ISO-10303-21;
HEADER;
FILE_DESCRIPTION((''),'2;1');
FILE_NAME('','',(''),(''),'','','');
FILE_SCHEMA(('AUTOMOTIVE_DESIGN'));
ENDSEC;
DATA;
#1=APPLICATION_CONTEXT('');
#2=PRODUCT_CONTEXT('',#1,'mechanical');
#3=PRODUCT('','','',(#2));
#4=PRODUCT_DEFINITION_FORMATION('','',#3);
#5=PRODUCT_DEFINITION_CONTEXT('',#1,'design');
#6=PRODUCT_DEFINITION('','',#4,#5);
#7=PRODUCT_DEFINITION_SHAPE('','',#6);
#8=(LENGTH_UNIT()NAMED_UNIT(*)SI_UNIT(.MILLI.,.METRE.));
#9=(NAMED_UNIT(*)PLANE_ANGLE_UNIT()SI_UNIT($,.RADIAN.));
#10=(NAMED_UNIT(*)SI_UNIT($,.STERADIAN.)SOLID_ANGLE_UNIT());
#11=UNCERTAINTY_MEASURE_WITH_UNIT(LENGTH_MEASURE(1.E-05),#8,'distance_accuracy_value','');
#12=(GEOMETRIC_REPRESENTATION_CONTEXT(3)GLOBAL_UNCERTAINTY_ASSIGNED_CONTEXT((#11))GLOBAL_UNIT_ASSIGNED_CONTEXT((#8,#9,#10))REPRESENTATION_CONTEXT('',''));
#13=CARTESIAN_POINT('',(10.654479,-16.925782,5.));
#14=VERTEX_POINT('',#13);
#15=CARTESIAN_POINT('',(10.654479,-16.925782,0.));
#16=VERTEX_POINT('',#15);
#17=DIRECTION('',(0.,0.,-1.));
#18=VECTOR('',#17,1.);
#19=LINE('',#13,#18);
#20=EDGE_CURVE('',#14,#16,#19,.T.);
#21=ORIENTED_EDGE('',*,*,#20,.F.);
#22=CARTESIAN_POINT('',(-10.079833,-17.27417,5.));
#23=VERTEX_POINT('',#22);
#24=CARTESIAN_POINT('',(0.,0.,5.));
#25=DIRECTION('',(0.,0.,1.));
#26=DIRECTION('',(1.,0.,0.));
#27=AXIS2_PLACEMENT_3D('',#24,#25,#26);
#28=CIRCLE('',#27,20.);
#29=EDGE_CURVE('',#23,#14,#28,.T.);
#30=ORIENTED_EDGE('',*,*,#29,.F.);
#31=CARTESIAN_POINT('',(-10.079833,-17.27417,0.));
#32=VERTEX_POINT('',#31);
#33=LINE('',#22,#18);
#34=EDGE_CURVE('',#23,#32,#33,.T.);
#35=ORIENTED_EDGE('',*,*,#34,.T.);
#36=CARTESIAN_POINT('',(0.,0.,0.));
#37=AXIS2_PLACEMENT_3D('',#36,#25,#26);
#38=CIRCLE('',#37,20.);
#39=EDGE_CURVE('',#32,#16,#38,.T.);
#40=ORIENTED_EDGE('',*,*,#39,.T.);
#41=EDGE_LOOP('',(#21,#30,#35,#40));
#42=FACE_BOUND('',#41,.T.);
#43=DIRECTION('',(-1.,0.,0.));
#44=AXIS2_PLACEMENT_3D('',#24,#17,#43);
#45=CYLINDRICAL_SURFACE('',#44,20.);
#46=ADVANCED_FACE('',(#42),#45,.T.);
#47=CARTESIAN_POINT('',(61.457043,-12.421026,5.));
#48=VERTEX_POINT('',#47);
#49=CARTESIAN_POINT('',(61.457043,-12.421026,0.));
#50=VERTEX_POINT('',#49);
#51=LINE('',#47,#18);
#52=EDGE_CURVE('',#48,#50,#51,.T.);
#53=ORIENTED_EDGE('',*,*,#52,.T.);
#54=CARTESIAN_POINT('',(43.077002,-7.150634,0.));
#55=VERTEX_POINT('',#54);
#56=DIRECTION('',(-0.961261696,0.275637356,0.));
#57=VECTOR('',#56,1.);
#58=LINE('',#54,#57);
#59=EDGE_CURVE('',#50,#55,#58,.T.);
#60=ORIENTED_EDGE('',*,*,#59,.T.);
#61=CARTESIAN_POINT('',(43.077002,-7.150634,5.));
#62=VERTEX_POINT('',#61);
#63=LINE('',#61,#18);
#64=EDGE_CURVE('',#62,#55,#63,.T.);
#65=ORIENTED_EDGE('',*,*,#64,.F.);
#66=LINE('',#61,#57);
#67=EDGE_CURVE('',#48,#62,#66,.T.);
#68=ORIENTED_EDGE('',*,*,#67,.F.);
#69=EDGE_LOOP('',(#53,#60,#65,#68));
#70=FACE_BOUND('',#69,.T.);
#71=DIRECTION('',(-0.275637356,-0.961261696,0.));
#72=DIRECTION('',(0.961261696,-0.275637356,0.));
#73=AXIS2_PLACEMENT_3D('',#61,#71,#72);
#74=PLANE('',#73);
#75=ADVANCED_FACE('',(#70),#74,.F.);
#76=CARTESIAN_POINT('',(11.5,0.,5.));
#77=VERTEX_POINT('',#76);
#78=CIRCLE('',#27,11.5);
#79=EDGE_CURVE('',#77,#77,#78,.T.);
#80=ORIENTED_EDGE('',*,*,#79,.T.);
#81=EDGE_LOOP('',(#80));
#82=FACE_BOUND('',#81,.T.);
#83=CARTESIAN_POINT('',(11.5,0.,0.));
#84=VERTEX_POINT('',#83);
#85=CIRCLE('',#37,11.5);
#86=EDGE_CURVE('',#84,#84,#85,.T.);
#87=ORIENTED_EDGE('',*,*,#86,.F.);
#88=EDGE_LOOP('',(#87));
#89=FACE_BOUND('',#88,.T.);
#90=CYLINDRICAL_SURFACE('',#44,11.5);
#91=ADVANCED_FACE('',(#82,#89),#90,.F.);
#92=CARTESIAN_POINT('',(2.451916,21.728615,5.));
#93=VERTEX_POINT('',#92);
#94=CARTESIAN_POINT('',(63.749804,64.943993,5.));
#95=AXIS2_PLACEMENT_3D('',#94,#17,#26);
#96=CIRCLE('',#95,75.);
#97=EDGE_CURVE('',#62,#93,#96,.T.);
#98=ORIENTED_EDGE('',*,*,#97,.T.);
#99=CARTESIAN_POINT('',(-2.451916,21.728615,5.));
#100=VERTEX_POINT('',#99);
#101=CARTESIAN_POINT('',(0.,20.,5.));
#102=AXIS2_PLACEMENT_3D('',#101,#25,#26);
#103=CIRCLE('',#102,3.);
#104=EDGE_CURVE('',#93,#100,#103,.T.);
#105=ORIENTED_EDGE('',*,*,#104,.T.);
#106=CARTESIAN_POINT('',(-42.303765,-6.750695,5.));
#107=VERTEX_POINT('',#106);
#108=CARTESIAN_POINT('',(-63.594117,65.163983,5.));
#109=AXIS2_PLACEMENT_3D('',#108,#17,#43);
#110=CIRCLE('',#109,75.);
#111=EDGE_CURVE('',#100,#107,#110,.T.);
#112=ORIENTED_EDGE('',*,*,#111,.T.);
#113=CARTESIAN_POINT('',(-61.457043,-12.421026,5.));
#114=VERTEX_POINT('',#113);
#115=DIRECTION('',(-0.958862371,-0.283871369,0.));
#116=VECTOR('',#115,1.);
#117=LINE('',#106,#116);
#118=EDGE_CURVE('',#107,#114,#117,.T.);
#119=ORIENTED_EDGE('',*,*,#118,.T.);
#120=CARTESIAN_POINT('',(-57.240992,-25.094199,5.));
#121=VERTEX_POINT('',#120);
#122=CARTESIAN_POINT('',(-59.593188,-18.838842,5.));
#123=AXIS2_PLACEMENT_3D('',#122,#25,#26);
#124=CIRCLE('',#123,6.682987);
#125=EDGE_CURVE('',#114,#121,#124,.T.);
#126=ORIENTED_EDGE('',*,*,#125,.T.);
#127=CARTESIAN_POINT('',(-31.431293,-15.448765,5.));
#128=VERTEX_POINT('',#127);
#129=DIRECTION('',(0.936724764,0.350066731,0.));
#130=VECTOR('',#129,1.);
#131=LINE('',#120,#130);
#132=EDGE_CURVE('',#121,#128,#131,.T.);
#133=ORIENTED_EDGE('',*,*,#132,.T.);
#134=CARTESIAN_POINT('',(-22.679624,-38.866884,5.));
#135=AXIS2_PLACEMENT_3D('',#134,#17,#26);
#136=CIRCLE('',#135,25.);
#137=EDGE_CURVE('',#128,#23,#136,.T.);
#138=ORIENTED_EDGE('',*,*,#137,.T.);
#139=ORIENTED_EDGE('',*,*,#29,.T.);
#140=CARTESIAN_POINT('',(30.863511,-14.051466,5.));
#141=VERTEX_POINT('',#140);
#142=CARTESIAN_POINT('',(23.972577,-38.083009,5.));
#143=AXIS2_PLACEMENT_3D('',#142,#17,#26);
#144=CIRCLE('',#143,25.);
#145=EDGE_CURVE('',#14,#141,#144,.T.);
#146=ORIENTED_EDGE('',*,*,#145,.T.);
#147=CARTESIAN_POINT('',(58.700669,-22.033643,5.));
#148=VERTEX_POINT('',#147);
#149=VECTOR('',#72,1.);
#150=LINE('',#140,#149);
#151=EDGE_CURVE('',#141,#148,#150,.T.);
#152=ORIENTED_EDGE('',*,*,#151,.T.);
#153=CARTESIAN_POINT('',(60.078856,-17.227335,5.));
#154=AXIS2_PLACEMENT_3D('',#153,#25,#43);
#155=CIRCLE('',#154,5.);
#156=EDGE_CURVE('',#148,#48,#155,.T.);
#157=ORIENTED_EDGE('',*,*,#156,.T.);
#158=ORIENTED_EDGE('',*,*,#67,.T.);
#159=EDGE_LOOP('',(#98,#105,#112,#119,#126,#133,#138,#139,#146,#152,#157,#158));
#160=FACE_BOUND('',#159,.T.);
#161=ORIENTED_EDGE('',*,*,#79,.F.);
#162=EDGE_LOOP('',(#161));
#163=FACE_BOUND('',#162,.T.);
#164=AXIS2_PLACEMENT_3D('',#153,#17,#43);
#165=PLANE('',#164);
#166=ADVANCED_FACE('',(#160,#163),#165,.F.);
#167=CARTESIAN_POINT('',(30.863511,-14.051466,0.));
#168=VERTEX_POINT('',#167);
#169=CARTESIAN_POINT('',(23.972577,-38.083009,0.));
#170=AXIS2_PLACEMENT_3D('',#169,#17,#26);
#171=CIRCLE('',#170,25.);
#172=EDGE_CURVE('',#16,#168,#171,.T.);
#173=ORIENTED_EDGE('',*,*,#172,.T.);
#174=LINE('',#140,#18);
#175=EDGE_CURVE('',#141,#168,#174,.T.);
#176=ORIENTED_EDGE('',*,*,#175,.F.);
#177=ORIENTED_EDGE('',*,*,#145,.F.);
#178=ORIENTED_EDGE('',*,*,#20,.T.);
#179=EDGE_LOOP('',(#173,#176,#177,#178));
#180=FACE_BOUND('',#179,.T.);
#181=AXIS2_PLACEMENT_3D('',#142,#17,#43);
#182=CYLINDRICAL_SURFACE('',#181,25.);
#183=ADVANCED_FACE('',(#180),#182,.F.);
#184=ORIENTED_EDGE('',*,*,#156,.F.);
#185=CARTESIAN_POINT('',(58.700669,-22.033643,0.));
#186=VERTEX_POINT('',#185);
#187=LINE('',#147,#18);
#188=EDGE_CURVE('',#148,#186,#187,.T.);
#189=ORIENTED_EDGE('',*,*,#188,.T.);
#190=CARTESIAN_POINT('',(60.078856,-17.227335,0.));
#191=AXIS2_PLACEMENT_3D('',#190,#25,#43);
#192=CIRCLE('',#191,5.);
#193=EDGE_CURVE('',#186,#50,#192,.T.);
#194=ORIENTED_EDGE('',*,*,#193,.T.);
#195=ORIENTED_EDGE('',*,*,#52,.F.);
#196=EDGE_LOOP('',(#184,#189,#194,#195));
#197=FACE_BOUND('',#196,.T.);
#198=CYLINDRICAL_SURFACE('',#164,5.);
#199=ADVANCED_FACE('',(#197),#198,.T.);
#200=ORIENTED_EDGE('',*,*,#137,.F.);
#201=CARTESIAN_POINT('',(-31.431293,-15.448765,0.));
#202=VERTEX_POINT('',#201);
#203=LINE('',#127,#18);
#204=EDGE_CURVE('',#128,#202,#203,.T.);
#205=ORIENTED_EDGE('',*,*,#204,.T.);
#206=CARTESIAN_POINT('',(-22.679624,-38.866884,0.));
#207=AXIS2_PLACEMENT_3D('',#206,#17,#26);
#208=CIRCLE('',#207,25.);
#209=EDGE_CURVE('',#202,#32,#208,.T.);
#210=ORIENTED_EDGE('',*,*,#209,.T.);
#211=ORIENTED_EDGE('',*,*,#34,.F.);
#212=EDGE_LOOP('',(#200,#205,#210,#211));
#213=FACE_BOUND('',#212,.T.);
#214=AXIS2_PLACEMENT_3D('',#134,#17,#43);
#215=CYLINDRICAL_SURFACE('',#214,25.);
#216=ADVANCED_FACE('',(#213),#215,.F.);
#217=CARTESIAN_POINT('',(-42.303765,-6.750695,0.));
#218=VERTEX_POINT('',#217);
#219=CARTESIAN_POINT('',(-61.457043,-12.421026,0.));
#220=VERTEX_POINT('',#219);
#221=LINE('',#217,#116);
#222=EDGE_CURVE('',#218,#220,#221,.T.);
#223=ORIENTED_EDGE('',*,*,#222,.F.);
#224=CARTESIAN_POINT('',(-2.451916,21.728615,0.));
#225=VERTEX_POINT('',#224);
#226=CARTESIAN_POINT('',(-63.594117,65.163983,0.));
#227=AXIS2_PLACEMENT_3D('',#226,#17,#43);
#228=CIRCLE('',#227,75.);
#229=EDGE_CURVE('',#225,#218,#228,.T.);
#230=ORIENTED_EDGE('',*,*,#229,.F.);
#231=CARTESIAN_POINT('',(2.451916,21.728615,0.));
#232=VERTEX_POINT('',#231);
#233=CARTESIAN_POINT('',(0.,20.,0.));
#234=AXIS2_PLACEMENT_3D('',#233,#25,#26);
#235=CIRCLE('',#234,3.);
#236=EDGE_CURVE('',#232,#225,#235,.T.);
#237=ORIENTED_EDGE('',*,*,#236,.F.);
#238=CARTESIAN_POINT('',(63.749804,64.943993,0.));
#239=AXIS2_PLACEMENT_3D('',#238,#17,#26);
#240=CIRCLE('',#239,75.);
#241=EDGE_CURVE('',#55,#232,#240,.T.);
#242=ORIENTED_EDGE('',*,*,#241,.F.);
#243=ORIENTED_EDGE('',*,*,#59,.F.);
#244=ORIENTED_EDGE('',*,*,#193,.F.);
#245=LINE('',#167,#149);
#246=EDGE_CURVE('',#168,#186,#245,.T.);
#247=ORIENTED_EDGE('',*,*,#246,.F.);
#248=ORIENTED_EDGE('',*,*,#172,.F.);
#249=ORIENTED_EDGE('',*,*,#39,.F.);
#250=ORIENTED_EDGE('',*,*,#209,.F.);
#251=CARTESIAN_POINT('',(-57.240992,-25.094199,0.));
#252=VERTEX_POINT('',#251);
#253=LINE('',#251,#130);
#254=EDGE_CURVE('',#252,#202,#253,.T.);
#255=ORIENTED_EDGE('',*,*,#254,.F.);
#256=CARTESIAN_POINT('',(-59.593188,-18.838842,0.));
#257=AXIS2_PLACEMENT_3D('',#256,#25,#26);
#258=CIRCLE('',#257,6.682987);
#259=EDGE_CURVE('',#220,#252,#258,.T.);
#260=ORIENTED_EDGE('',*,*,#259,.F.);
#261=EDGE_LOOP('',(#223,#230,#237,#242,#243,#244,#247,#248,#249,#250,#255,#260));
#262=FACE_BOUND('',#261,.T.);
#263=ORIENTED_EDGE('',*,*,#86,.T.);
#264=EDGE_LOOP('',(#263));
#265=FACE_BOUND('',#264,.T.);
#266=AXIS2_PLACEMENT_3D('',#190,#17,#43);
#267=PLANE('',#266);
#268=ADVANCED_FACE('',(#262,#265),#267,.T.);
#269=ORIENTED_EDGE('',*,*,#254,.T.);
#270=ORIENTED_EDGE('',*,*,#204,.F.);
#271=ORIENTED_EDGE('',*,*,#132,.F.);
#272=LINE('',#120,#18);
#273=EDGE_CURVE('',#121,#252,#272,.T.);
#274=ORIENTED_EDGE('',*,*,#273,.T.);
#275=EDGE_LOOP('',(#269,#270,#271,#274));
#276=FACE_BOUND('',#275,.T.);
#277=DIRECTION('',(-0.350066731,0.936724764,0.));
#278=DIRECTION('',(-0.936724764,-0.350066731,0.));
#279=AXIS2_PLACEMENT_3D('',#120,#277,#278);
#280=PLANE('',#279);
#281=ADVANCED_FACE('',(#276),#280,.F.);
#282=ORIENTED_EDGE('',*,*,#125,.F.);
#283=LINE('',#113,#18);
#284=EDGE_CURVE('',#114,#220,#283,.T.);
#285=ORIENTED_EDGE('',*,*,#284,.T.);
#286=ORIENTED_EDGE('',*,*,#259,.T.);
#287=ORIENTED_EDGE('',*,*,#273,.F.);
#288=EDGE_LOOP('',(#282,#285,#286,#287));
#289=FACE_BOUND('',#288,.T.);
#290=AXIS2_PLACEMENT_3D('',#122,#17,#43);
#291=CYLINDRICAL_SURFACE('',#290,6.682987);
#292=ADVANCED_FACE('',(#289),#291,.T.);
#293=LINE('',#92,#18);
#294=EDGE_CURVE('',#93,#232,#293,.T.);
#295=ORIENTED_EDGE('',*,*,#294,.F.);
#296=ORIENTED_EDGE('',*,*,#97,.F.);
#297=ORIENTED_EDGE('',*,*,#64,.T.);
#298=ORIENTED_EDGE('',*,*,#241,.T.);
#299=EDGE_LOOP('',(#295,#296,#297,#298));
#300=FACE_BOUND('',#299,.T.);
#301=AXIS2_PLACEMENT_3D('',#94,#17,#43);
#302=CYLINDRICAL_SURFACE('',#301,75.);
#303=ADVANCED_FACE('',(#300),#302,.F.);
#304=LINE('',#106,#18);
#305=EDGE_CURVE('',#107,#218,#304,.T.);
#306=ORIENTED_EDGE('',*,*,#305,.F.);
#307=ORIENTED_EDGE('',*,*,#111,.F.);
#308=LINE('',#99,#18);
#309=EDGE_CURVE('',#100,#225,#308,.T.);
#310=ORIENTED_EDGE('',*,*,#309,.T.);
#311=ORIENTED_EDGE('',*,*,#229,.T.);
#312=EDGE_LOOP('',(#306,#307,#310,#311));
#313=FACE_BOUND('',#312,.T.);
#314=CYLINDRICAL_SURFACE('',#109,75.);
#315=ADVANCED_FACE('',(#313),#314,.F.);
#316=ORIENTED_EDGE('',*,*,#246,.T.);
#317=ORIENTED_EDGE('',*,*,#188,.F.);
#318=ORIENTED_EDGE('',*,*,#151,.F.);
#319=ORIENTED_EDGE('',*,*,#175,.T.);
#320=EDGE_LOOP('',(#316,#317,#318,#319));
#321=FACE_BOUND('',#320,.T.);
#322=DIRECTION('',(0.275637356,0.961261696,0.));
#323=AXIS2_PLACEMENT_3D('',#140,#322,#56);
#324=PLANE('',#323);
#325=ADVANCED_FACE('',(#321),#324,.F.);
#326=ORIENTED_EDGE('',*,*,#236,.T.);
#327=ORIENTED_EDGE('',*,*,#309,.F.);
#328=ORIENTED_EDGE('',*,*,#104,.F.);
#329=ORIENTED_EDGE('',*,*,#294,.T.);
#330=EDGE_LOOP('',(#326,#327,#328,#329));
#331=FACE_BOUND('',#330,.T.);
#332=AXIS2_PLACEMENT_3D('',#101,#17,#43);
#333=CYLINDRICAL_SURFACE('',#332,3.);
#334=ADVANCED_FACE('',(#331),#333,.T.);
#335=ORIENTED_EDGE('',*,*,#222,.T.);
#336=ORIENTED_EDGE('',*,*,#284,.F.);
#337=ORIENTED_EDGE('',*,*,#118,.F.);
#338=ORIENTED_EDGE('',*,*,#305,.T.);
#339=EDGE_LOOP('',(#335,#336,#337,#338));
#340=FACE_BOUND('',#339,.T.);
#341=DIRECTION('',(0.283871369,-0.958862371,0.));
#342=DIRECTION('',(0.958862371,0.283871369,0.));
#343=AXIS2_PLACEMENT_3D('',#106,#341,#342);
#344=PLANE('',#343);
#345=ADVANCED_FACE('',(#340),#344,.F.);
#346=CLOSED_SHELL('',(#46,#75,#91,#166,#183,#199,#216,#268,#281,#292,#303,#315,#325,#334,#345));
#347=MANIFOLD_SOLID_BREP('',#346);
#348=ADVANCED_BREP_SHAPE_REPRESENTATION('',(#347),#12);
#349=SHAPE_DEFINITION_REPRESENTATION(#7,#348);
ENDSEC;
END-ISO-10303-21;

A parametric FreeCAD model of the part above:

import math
import FreeCAD as App
import Part
import Sketcher

V = App.Vector
Q = App.Units.Quantity

doc = App.newDocument("Part")
body = doc.addObject("PartDesign::Body", "Body")

# Sketch on XY plane
sketch1 = body.newObject("Sketcher::SketchObject", "Sketch")
sketch1.AttachmentSupport = (doc.getObject("XY_Plane"), [""])
sketch1.MapMode = "FlatFace"
sketch1.addGeometry([
    Part.LineSegment(V(30.9, -14.1, 0), V(58.7, -22, 0)),  # 0
    Part.ArcOfCircle(Part.Circle(V(60.1, -17.2, 0), V(0, 0, 1), 5), math.radians(-106), math.radians(74)),  # 1
    Part.LineSegment(V(61.5, -12.4, 0), V(43.1, -7.2, 0)),  # 2
    Part.ArcOfCircle(Part.Circle(V(63.7, 64.9, 0), V(0, 0, 1), 75), math.radians(-145), math.radians(-106)),  # 3
    Part.ArcOfCircle(Part.Circle(V(0, 20, 0), V(0, 0, 1), 3), math.radians(35), math.radians(145)),  # 4
    Part.ArcOfCircle(Part.Circle(V(-63.6, 65.2, 0), V(0, 0, 1), 75), math.radians(-74), math.radians(-35)),  # 5
    Part.LineSegment(V(-42.3, -6.8, 0), V(-61.5, -12.4, 0)),  # 6
    Part.ArcOfCircle(Part.Circle(V(-59.6, -18.8, 0), V(0, 0, 1), 6.7), math.radians(106), math.radians(291)),  # 7
    Part.LineSegment(V(-57.2, -25.1, 0), V(-31.4, -15.4, 0)),  # 8
    Part.ArcOfCircle(Part.Circle(V(-22.7, -38.9, 0), V(0, 0, 1), 25), math.radians(60), math.radians(110)),  # 9
    Part.ArcOfCircle(Part.Circle(V(0, 0, 0), V(0, 0, 1), 20), math.radians(-120), math.radians(-58)),  # 10
    Part.ArcOfCircle(Part.Circle(V(24, -38.1, 0), V(0, 0, 1), 25), math.radians(74), math.radians(122)),  # 11
    Part.Circle(V(0, 0, 0), V(0, 0, 1), 11.5),  # 12
], False)
sketch1.addConstraint([
    Sketcher.Constraint("Tangent", 0, 2, 1, 1),
    Sketcher.Constraint("Tangent", 1, 2, 2, 1),
    Sketcher.Constraint("Tangent", 2, 2, 3, 2),
    Sketcher.Constraint("Tangent", 3, 1, 4, 1),
    Sketcher.Constraint("Coincident", 4, 2, 5, 2),
    Sketcher.Constraint("Tangent", 5, 1, 6, 1),
    Sketcher.Constraint("Coincident", 6, 2, 7, 1),
    Sketcher.Constraint("Coincident", 7, 2, 8, 1),
    Sketcher.Constraint("Tangent", 8, 2, 9, 2),
    Sketcher.Constraint("Tangent", 9, 1, 10, 1),
    Sketcher.Constraint("Tangent", 10, 2, 11, 2),
    Sketcher.Constraint("Tangent", 11, 1, 0, 1),
    Sketcher.Constraint("Coincident", 10, 3, -1, 1),
    Sketcher.Constraint("Coincident", 12, 3, -1, 1),
    Sketcher.Constraint("Equal", 3, 5),
    Sketcher.Constraint("Equal", 9, 11),
    Sketcher.Constraint("Symmetric", 3, 1, 4, 2, -2),
    Sketcher.Constraint("Symmetric", 1, 2, 6, 2, -2),
    Sketcher.Constraint("Parallel", 0, 2),
    Sketcher.Constraint("Diameter", 12, Q("23 mm")),
    Sketcher.Constraint("Radius", 1, Q("5 mm")),
    Sketcher.Constraint("Radius", 3, Q("75 mm")),
    Sketcher.Constraint("Radius", 4, Q("3 mm")),
    Sketcher.Constraint("Radius", 9, Q("25 mm")),
    Sketcher.Constraint("Radius", 10, Q("20 mm")),
    Sketcher.Constraint("Angle", 0, Q("-16 deg")),
    Sketcher.Constraint("DistanceY", -1, 1, 4, 3, Q("20 mm")),
    Sketcher.Constraint("Radius", 7, Q("6.682987 mm")),
    Sketcher.Constraint("DistanceY", 7, 2, -1, 1, Q("25.094199 mm")),
    Sketcher.Constraint("DistanceX", 9, 3, 11, 3, Q("46.652201 mm")),
    Sketcher.Constraint("DistanceY", 1, 3, 2, 2, Q("10.0767 mm")),
    Sketcher.Constraint("DistanceX", 7, 2, 8, 2, Q("25.8097 mm")),
    Sketcher.Constraint("Distance", 0, Q("28.95898 mm")),
    Sketcher.Constraint("DistanceX", 5, 3, 3, 3, Q("127.343921 mm")),
])
pad1 = body.newObject("PartDesign::Pad", "Pad")
pad1.Profile = sketch1
pad1.Length = 5

doc.recompute()
